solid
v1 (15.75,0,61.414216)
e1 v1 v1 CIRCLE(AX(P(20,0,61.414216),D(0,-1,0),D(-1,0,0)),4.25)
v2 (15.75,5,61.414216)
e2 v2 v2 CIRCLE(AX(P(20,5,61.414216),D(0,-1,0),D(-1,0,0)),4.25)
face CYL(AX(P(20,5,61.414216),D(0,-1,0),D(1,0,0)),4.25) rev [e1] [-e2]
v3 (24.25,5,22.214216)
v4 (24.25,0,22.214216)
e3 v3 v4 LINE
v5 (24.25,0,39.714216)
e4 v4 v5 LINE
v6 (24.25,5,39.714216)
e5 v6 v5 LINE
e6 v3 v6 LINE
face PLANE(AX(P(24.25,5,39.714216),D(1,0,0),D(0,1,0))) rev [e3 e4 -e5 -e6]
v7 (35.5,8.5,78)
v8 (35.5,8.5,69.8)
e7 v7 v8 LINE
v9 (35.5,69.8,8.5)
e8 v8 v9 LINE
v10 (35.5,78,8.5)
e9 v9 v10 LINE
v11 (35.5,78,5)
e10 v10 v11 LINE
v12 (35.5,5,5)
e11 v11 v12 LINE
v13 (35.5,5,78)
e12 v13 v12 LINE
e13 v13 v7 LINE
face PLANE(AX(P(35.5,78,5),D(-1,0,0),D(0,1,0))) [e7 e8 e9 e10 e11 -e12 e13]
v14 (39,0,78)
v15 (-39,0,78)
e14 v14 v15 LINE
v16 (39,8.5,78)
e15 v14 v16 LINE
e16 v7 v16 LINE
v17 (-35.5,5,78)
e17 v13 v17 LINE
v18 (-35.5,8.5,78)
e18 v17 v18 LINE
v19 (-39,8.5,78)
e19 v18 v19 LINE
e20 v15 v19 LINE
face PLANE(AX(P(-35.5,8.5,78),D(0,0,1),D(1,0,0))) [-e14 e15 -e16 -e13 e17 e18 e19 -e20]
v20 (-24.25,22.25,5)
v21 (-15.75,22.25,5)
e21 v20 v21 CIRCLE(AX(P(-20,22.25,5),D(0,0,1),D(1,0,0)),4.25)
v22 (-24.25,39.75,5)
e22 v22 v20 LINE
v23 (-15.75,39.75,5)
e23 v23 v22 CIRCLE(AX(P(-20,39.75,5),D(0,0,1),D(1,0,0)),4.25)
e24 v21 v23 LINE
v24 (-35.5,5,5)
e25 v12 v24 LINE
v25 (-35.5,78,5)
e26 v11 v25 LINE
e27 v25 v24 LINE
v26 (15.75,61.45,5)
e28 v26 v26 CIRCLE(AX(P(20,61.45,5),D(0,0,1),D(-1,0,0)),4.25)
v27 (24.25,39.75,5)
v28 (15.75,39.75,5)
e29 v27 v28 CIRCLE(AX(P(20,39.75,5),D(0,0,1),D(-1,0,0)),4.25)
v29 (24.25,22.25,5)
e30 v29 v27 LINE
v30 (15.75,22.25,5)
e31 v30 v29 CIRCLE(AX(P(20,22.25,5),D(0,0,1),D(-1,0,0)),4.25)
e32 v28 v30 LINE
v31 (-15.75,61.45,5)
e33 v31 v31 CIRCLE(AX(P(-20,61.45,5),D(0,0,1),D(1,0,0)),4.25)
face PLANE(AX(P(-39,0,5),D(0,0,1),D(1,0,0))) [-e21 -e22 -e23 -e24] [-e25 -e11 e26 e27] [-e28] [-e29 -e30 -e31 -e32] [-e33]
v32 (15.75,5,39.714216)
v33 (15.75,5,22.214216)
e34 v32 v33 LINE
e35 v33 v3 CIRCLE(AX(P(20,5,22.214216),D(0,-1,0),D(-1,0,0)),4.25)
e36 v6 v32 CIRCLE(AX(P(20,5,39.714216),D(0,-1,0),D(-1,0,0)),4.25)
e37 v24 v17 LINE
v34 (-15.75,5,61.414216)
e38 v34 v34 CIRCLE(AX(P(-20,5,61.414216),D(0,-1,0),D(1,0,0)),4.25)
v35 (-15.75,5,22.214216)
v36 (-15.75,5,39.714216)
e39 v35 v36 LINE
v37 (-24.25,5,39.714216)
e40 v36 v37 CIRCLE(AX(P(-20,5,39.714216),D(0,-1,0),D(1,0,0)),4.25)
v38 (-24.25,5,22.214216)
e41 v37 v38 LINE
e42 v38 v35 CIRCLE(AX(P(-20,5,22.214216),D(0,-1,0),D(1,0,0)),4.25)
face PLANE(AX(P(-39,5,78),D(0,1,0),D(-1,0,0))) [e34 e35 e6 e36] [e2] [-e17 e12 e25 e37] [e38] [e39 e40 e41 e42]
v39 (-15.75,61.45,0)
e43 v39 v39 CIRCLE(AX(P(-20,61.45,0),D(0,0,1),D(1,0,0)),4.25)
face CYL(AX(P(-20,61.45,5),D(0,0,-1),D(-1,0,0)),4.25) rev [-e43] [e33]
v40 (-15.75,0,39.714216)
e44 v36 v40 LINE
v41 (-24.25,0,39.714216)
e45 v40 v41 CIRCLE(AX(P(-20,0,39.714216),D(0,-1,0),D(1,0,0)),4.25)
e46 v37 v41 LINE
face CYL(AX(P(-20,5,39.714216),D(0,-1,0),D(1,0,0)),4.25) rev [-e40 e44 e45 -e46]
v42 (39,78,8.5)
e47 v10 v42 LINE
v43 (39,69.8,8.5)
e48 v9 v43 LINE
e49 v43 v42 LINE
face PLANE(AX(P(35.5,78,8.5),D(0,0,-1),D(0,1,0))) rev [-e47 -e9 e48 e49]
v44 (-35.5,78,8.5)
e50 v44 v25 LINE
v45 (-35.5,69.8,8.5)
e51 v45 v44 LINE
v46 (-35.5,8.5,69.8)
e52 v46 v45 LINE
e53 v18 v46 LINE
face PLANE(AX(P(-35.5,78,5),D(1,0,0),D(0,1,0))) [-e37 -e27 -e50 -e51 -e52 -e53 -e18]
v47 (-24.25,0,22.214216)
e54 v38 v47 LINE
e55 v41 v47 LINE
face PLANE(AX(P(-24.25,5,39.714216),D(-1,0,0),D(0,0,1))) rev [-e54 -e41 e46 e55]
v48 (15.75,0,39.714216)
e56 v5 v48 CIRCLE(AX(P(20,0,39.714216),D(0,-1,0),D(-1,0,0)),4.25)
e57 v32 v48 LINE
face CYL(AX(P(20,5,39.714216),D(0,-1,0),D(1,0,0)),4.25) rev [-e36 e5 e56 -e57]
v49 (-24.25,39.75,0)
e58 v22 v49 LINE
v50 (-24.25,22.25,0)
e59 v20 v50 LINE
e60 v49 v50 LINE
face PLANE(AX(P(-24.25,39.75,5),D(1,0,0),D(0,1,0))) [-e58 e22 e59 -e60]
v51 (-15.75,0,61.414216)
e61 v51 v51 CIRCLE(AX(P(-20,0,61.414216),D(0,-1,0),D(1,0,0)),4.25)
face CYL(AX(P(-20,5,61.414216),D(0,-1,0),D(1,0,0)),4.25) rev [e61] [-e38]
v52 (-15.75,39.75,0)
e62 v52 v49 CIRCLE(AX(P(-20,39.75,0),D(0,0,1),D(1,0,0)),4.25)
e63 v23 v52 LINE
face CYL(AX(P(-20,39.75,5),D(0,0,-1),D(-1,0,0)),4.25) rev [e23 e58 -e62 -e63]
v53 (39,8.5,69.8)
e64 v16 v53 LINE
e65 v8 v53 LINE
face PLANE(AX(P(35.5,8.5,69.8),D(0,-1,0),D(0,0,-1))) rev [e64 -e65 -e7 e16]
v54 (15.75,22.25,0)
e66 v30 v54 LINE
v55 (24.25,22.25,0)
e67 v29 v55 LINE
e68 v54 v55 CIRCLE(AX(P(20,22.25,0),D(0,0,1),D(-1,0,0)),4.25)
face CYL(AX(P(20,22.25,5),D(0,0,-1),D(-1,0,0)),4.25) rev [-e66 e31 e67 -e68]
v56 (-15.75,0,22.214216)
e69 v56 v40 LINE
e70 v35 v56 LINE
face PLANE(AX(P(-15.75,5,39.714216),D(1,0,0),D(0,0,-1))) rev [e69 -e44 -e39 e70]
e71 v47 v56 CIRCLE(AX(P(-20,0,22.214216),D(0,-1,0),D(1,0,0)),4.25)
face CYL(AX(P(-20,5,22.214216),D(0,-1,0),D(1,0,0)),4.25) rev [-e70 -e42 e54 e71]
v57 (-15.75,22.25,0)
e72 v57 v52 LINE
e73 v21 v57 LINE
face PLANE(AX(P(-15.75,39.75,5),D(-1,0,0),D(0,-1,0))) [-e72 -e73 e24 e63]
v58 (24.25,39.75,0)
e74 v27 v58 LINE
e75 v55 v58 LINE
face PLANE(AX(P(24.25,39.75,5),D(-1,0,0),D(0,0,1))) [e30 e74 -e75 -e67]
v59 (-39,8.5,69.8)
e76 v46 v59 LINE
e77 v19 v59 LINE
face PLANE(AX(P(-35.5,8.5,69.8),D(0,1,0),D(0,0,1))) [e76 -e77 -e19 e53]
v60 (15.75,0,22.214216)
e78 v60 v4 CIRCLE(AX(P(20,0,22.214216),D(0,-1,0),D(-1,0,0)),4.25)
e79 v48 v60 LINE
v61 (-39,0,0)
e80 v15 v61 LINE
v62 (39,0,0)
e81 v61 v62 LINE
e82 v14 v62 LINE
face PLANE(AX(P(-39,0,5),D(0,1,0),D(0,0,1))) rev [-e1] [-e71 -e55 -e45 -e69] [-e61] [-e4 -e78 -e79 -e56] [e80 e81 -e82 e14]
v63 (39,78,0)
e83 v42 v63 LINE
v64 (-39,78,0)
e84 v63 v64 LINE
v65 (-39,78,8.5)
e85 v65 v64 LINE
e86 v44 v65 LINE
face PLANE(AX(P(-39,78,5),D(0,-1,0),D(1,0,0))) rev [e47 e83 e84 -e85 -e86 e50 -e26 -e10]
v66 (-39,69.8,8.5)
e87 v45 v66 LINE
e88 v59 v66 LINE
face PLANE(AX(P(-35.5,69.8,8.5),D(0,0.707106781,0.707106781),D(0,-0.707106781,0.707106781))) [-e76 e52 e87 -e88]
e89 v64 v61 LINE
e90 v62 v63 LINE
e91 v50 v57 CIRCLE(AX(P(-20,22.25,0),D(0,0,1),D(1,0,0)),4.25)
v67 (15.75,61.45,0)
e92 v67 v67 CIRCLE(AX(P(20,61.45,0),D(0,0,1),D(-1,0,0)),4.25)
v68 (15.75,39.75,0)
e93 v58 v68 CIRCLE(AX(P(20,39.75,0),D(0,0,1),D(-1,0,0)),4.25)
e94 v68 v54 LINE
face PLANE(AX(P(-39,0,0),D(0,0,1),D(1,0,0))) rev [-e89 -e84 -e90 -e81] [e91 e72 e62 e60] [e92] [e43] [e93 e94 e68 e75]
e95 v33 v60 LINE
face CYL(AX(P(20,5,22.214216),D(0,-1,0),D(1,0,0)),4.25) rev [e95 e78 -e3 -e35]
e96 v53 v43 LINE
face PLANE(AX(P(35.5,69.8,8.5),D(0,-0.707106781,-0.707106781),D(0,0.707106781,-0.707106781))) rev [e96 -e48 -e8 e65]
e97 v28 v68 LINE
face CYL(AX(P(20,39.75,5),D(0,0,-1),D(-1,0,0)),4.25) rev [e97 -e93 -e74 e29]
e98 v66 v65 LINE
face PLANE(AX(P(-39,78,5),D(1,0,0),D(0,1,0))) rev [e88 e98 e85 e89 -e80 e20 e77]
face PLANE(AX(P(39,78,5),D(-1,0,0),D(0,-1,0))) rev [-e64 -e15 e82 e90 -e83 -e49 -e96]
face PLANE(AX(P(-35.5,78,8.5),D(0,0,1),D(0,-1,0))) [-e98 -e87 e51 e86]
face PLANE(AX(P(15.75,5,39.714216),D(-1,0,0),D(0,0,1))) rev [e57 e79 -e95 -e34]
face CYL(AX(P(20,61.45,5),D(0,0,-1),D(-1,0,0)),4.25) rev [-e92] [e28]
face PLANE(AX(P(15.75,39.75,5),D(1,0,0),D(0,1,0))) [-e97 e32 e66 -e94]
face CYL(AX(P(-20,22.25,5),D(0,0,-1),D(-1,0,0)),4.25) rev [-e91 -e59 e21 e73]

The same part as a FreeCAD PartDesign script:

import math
import FreeCAD as App
import Part
import Sketcher

V = App.Vector
Q = App.Units.Quantity


def add_polygon(sketch, points):
    """Adds a closed chain of lines whose ends are joined by coincident constraints."""
    first, n = sketch.GeometryCount, len(points)
    for a, b in zip(points, points[1:] + points[:1]):
        sketch.addGeometry(Part.LineSegment(App.Vector(*a, 0), App.Vector(*b, 0)), False)
    for i in range(n):
        sketch.addConstraint(Sketcher.Constraint("Coincident", first + i, 2, first + (i + 1) % n, 1))

doc = App.newDocument("Part")
body = doc.addObject("PartDesign::Body", "Body")

# Sketch on XY plane
sketch1 = body.newObject("Sketcher::SketchObject", "Sketch")
sketch1.AttachmentSupport = (doc.getObject("XY_Plane"), [""])
sketch1.MapMode = "FlatFace"
add_polygon(sketch1, [(-39, 78), (-39, 0), (39, 0), (39, 78)])  # lines 0-3
sketch1.addGeometry(Part.ArcOfCircle(Part.Circle(V(-20, 39.8, 0), V(0, 0, 1), 4.2), math.radians(0), math.radians(180)), False)  # 4
sketch1.addGeometry(Part.LineSegment(V(-15.8, 39.8, 0), V(-15.8, 22.2, 0)), False)  # 5
sketch1.addGeometry(Part.ArcOfCircle(Part.Circle(V(-20, 22.2, 0), V(0, 0, 1), 4.2), math.radians(180), math.radians(360)), False)  # 6
sketch1.addGeometry(Part.LineSegment(V(-24.2, 22.2, 0), V(-24.2, 39.8, 0)), False)  # 7
sketch1.addGeometry(Part.LineSegment(V(15.8, 22.2, 0), V(15.8, 39.8, 0)), False)  # 8
sketch1.addGeometry(Part.ArcOfCircle(Part.Circle(V(20, 39.8, 0), V(0, 0, 1), 4.2), math.radians(0), math.radians(180)), False)  # 9
sketch1.addGeometry(Part.LineSegment(V(24.2, 39.8, 0), V(24.2, 22.2, 0)), False)  # 10
sketch1.addGeometry(Part.ArcOfCircle(Part.Circle(V(20, 22.2, 0), V(0, 0, 1), 4.2), math.radians(180), math.radians(360)), False)  # 11
sketch1.addGeometry(Part.Circle(V(-20, 61.5, 0), V(0, 0, 1), 4.2), False)  # 12
sketch1.addGeometry(Part.Circle(V(20, 61.5, 0), V(0, 0, 1), 4.2), False)  # 13
sketch1.addConstraint([
    Sketcher.Constraint("Tangent", 4, 1, 5, 1),
    Sketcher.Constraint("Tangent", 5, 2, 6, 2),
    Sketcher.Constraint("Tangent", 6, 1, 7, 1),
    Sketcher.Constraint("Tangent", 7, 2, 4, 2),
    Sketcher.Constraint("Tangent", 8, 2, 9, 2),
    Sketcher.Constraint("Tangent", 9, 1, 10, 1),
    Sketcher.Constraint("Tangent", 10, 2, 11, 2),
    Sketcher.Constraint("Tangent", 11, 1, 8, 1),
    Sketcher.Constraint("Vertical", 0),
    Sketcher.Constraint("Horizontal", 1),
    Sketcher.Constraint("Vertical", 2),
    Sketcher.Constraint("Horizontal", 3),
    Sketcher.Constraint("Vertical", 5),
    Sketcher.Constraint("Vertical", 7),
    Sketcher.Constraint("Vertical", 8),
    Sketcher.Constraint("Vertical", 10),
    Sketcher.Constraint("Equal", 6, 9),
    Sketcher.Constraint("Equal", 11, 12),
    Sketcher.Constraint("Equal", 12, 13),
    Sketcher.Constraint("Symmetric", 0, 2, 1, 2, -1, 1),
    Sketcher.Constraint("Symmetric", 4, 3, 9, 3, -2),
    Sketcher.Constraint("Symmetric", 12, 3, 13, 3, -2),
    Sketcher.Constraint("Horizontal", 6, 3, 11, 3),
    Sketcher.Constraint("Vertical", 6, 3, 12, 3),
    Sketcher.Constraint("Equal", 3, 0),
    Sketcher.Constraint("Diameter", 12, 8.5),
    Sketcher.Constraint("DistanceX", 1, 1, 1, 2, 78.0),
    Sketcher.Constraint("DistanceY", 5, 2, 5, 1, 17.5),
    Sketcher.Constraint("DistanceX", 4, 3, -1, 1, 20.0),
    Sketcher.Constraint("DistanceY", 4, 3, 12, 3, 21.7),
    Sketcher.Constraint("DistanceY", -1, 1, 4, 3, 39.75),
])
pad1 = body.newObject("PartDesign::Pad", "Pad")
pad1.Profile = sketch1
pad1.Length = 5

# Sketch on YZ plane
sketch2 = body.newObject("Sketcher::SketchObject", "Sketch001")
sketch2.AttachmentSupport = (doc.getObject("YZ_Plane"), [""])
sketch2.MapMode = "FlatFace"
sketch2.AttachmentOffset = App.Placement(V(0, 0, -39), App.Rotation())
add_polygon(sketch2, [(78, 8.5), (78, 5), (0, 5), (0, 78), (8.5, 78), (8.5, 69.8), (69.8, 8.5)])  # lines 0-6
sketch2.addConstraint([
    Sketcher.Constraint("Vertical", 0),
    Sketcher.Constraint("Horizontal", 1),
    Sketcher.Constraint("Vertical", 2),
    Sketcher.Constraint("Horizontal", 3),
    Sketcher.Constraint("Vertical", 4),
    Sketcher.Constraint("Horizontal", 6),
    Sketcher.Constraint("PointOnObject", 1, 2, -2),
    Sketcher.Constraint("Equal", 6, 4),
    Sketcher.Constraint("DistanceX", 1, 2, 1, 1, 78.0),
    Sketcher.Constraint("DistanceY", 2, 1, 2, 2, 73.0),
    Sketcher.Constraint("Angle", 5, Q("-45 deg")),
    Sketcher.Constraint("DistanceX", 3, 1, 3, 2, 8.5),
    Sketcher.Constraint("DistanceX", 6, 1, 6, 2, 8.2),
    Sketcher.Constraint("DistanceY", -1, 1, 0, 2, 5.0),
])
pad2 = body.newObject("PartDesign::Pad", "Pad001")
pad2.Profile = sketch2
pad2.Length = 3.5
doc.recompute()

mirrored = body.newObject("PartDesign::Mirrored", "Mirrored")
mirrored.Originals = [pad2]
mirrored.MirrorPlane = (doc.getObject("YZ_Plane"), [""])
body.Tip = mirrored

# Sketch on XZ plane
sketch3 = body.newObject("Sketcher::SketchObject", "Sketch002")
sketch3.AttachmentSupport = (doc.getObject("XZ_Plane"), [""])
sketch3.MapMode = "FlatFace"
add_polygon(sketch3, [(-39, 78), (-39, 0), (39, 0), (39, 78)])  # lines 0-3
sketch3.addGeometry(Part.ArcOfCircle(Part.Circle(V(-20, 39.7, 0), V(0, 0, 1), 4.2), math.radians(0), math.radians(180)), False)  # 4
sketch3.addGeometry(Part.LineSegment(V(-15.8, 39.7, 0), V(-15.8, 22.2, 0)), False)  # 5
sketch3.addGeometry(Part.ArcOfCircle(Part.Circle(V(-20, 22.2, 0), V(0, 0, 1), 4.2), math.radians(180), math.radians(360)), False)  # 6
sketch3.addGeometry(Part.LineSegment(V(-24.2, 22.2, 0), V(-24.2, 39.7, 0)), False)  # 7
sketch3.addGeometry(Part.LineSegment(V(15.8, 22.2, 0), V(15.8, 39.7, 0)), False)  # 8
sketch3.addGeometry(Part.ArcOfCircle(Part.Circle(V(20, 39.7, 0), V(0, 0, 1), 4.2), math.radians(0), math.radians(180)), False)  # 9
sketch3.addGeometry(Part.LineSegment(V(24.2, 39.7, 0), V(24.2, 22.2, 0)), False)  # 10
sketch3.addGeometry(Part.ArcOfCircle(Part.Circle(V(20, 22.2, 0), V(0, 0, 1), 4.2), math.radians(180), math.radians(360)), False)  # 11
sketch3.addGeometry(Part.Circle(V(-20, 61.4, 0), V(0, 0, 1), 4.2), False)  # 12
sketch3.addGeometry(Part.Circle(V(20, 61.4, 0), V(0, 0, 1), 4.2), False)  # 13
sketch3.addConstraint([
    Sketcher.Constraint("Tangent", 4, 1, 5, 1),
    Sketcher.Constraint("Tangent", 5, 2, 6, 2),
    Sketcher.Constraint("Tangent", 6, 1, 7, 1),
    Sketcher.Constraint("Tangent", 7, 2, 4, 2),
    Sketcher.Constraint("Tangent", 8, 2, 9, 2),
    Sketcher.Constraint("Tangent", 9, 1, 10, 1),
    Sketcher.Constraint("Tangent", 10, 2, 11, 2),
    Sketcher.Constraint("Tangent", 11, 1, 8, 1),
    Sketcher.Constraint("Vertical", 0),
    Sketcher.Constraint("Horizontal", 1),
    Sketcher.Constraint("Vertical", 2),
    Sketcher.Constraint("Horizontal", 3),
    Sketcher.Constraint("Vertical", 5),
    Sketcher.Constraint("Vertical", 7),
    Sketcher.Constraint("Vertical", 8),
    Sketcher.Constraint("Vertical", 10),
    Sketcher.Constraint("Equal", 6, 9),
    Sketcher.Constraint("Equal", 11, 12),
    Sketcher.Constraint("Equal", 12, 13),
    Sketcher.Constraint("Symmetric", 0, 2, 1, 2, -1, 1),
    Sketcher.Constraint("Symmetric", 4, 3, 9, 3, -2),
    Sketcher.Constraint("Symmetric", 12, 3, 13, 3, -2),
    Sketcher.Constraint("Horizontal", 6, 3, 11, 3),
    Sketcher.Constraint("Vertical", 6, 3, 12, 3),
    Sketcher.Constraint("Equal", 3, 0),
    Sketcher.Constraint("Diameter", 12, 8.5),
    Sketcher.Constraint("DistanceX", 1, 1, 1, 2, 78.0),
    Sketcher.Constraint("DistanceY", 5, 2, 5, 1, 17.5),
    Sketcher.Constraint("DistanceX", 4, 3, -1, 1, 20.0),
    Sketcher.Constraint("DistanceY", 4, 3, 12, 3, 21.7),
    Sketcher.Constraint("DistanceY", -1, 1, 4, 3, 39.714216),
])
pad3 = body.newObject("PartDesign::Pad", "Pad002")
pad3.Profile = sketch3
pad3.Length = 5
pad3.Reversed = True

doc.recompute()
